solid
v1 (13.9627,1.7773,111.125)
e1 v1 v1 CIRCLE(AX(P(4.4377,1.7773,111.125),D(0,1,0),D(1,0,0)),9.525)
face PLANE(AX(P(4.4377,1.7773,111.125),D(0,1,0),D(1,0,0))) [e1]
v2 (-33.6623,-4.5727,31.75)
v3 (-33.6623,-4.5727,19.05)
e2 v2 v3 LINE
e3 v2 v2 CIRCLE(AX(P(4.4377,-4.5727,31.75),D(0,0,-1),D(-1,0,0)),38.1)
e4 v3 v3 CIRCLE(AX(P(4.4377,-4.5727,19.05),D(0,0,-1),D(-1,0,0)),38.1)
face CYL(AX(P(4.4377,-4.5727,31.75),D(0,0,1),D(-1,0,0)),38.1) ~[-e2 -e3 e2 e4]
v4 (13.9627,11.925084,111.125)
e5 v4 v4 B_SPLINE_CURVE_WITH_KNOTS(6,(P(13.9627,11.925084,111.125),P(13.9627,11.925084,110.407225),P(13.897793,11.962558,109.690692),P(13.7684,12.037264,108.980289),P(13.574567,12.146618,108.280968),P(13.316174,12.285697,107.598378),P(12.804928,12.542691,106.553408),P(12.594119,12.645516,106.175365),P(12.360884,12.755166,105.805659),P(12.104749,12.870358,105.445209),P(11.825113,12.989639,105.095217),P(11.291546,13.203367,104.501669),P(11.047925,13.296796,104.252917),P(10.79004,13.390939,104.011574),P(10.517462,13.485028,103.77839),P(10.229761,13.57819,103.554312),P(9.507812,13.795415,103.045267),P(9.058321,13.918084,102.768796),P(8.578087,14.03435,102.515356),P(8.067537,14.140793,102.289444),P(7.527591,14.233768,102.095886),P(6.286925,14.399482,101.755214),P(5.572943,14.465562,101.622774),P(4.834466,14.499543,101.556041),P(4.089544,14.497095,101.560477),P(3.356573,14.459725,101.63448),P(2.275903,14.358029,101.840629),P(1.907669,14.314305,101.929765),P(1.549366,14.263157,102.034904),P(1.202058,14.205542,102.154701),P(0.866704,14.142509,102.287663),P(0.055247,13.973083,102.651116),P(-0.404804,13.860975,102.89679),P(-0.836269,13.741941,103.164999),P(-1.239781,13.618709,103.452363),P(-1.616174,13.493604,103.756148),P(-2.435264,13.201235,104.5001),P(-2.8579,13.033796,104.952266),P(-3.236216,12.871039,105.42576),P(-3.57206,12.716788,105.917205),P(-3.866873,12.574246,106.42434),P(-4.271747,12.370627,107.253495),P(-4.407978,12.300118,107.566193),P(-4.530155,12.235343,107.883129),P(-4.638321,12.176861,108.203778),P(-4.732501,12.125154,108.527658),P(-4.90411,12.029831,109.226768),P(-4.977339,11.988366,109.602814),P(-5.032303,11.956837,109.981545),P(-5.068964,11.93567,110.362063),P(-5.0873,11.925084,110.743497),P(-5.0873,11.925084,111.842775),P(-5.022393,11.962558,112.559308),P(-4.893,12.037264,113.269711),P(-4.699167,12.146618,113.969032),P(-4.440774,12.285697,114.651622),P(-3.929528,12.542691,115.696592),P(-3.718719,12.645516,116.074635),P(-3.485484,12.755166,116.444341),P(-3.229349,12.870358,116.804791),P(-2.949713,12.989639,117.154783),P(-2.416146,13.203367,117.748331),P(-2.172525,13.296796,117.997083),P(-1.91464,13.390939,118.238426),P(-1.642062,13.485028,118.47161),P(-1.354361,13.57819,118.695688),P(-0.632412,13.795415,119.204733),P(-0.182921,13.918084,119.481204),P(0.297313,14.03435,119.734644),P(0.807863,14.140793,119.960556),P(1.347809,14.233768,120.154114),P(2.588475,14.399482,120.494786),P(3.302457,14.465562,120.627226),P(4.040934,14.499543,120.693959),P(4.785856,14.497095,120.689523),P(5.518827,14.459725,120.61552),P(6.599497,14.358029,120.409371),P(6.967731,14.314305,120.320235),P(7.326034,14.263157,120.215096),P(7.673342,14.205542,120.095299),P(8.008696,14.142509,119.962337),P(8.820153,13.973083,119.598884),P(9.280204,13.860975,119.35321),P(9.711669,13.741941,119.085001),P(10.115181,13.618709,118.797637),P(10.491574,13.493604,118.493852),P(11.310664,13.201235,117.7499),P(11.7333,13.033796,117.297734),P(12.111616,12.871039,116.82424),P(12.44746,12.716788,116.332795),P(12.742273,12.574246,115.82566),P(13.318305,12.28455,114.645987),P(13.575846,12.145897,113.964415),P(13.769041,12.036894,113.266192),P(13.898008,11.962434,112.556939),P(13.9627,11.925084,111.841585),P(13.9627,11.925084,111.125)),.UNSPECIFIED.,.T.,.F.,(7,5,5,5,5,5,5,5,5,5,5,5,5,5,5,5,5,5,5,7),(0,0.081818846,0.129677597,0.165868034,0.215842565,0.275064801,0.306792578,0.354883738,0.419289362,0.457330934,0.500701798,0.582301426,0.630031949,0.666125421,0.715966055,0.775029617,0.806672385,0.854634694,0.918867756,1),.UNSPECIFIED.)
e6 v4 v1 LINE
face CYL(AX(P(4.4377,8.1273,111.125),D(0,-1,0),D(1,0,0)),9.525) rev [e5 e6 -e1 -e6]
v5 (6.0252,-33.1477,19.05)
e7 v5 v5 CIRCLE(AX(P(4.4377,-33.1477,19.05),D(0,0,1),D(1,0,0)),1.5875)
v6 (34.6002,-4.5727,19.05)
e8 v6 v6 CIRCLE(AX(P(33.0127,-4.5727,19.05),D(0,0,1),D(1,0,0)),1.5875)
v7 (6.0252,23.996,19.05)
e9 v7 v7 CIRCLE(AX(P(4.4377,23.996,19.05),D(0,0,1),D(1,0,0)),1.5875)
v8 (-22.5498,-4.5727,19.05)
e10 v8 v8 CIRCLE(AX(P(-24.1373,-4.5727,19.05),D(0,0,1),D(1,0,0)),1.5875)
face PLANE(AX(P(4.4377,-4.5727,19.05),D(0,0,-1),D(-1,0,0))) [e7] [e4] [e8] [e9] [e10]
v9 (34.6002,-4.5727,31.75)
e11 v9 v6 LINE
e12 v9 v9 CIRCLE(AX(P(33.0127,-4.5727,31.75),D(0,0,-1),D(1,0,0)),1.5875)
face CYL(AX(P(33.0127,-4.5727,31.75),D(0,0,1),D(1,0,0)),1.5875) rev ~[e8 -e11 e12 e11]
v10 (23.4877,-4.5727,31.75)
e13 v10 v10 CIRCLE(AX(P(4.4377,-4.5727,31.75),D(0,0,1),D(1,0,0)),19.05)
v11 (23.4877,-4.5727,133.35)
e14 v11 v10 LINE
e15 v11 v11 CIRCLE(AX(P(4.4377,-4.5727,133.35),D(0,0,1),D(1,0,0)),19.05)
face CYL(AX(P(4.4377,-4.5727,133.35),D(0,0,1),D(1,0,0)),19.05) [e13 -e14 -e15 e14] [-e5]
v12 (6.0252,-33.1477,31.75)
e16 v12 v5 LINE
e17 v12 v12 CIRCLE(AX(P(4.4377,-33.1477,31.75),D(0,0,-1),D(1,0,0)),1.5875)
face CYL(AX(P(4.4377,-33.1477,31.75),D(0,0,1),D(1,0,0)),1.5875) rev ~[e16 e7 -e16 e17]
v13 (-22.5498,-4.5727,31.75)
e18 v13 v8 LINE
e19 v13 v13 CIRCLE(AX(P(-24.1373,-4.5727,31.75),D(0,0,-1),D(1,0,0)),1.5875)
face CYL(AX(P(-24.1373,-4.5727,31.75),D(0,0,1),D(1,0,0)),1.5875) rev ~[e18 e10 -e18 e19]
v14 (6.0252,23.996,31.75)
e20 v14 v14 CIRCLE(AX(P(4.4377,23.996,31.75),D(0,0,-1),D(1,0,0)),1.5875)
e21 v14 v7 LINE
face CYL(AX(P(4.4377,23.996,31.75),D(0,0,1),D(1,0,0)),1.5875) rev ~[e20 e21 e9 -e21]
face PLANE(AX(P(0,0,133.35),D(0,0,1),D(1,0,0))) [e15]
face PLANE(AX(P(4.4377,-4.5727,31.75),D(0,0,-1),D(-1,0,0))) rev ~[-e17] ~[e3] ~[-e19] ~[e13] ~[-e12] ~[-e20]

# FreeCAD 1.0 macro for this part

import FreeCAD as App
import Part
import Sketcher
from FreeCAD import Vector
Q = App.Units.Quantity

doc = App.newDocument("Part")
body = doc.addObject("PartDesign::Body", "Body")

sketch1 = body.newObject("Sketcher::SketchObject", "Sketch")
sketch1.AttachmentSupport = (doc.getObject("XY_Plane"), [""])
sketch1.MapMode = "FlatFace"
sketch1.AttachmentOffset = App.Placement(Vector(0, 0, 1.25 * 25.4), App.Rotation())
sketch1.addGeometry(Part.Circle(Vector(4, -5, 0), Vector(0, 0, 1), 25), False)
sketch1.addConstraint([
    Sketcher.Constraint("Diameter", 0, Q("2 in")),
    Sketcher.Constraint("DistanceX", -1, 1, 0, 3, 4.4377),
    Sketcher.Constraint("DistanceY", 0, 3, -1, 1, 4.5727),
])
pad1 = body.newObject("PartDesign::Pad", "Pad")
pad1.Profile = sketch1
pad1.Length = Q("4 in")

sketch2 = body.newObject("Sketcher::SketchObject", "Sketch001")
sketch2.AttachmentSupport = (doc.getObject("XZ_Plane"), [""])
sketch2.MapMode = "FlatFace"
sketch2.AttachmentOffset = App.Placement(Vector(0, 0, -8.1273), App.Rotation())
sketch2.addGeometry(Part.Circle(Vector(4, 111, 0), Vector(0, 0, 1), 10), False)
sketch2.addConstraint([
    Sketcher.Constraint("Diameter", 0, Q("0.75 in")),
    Sketcher.Constraint("DistanceY", -1, 1, 0, 3, Q("4.375 in")),
    Sketcher.Constraint("DistanceX", -1, 1, 0, 3, 4.4377),
])
pocket1 = body.newObject("PartDesign::Pocket", "Pocket")
pocket1.Profile = sketch2
pocket1.Length = Q("4 in")

sketch3 = body.newObject("Sketcher::SketchObject", "Sketch002")
sketch3.AttachmentSupport = (doc.getObject("XZ_Plane"), [""])
sketch3.MapMode = "FlatFace"
sketch3.AttachmentOffset = App.Placement(Vector(0, 0, -8.1273), App.Rotation())
sketch3.addGeometry(Part.Circle(Vector(4, 111, 0), Vector(0, 0, 1), 10), False)
sketch3.addConstraint([
    Sketcher.Constraint("Diameter", 0, Q("0.75 in")),
    Sketcher.Constraint("DistanceY", -1, 1, 0, 3, Q("4.375 in")),
    Sketcher.Constraint("DistanceX", -1, 1, 0, 3, 4.4377),
])
pocket2 = body.newObject("PartDesign::Pocket", "Pocket001")
pocket2.Profile = sketch3
pocket2.Length = Q("0.25 in")
pocket2.Reversed = True

sketch4 = body.newObject("Sketcher::SketchObject", "Sketch003")
sketch4.AttachmentSupport = (doc.getObject("XY_Plane"), [""])
sketch4.MapMode = "FlatFace"
sketch4.AttachmentOffset = App.Placement(Vector(0, 0, 1.25 * 25.4), App.Rotation())
sketch4.addGeometry(Part.Circle(Vector(4, -5, 0), Vector(0, 0, 1), 38), False)
sketch4.addConstraint([
    Sketcher.Constraint("Diameter", 0, Q("3 in")),
    Sketcher.Constraint("DistanceX", -1, 1, 0, 3, 4.4377),
    Sketcher.Constraint("DistanceY", 0, 3, -1, 1, 4.5727),
])
pad2 = body.newObject("PartDesign::Pad", "Pad001")
pad2.Profile = sketch4
pad2.Length = Q("0.5 in")
pad2.Reversed = True

sketch5 = body.newObject("Sketcher::SketchObject", "Sketch004")
sketch5.AttachmentSupport = (doc.getObject("XY_Plane"), [""])
sketch5.MapMode = "FlatFace"
sketch5.AttachmentOffset = App.Placement(Vector(0, 0, 5.25 * 25.4), App.Rotation())
sketch5.addGeometry([
    Part.Circle(Vector(4, -5, 0), Vector(0, 0, 1), 25),
    Part.Circle(Vector(4, -5, 0), Vector(0, 0, 1), 19),
], False)
sketch5.addConstraint([
    Sketcher.Constraint("Coincident", 1, 3, 0, 3),
    Sketcher.Constraint("Diameter", 1, Q("1.5 in")),
    Sketcher.Constraint("Diameter", 0, Q("2 in")),
    Sketcher.Constraint("DistanceX", -1, 1, 0, 3, 4.4377),
    Sketcher.Constraint("DistanceY", 0, 3, -1, 1, 4.5727),
])
pocket3 = body.newObject("PartDesign::Pocket", "Pocket002")
pocket3.Profile = sketch5
pocket3.Length = Q("4 in")

sketch6 = body.newObject("Sketcher::SketchObject", "Sketch005")
sketch6.AttachmentSupport = (doc.getObject("XY_Plane"), [""])
sketch6.MapMode = "FlatFace"
sketch6.AttachmentOffset = App.Placement(Vector(0, 0, 1.25 * 25.4), App.Rotation())
sketch6.addGeometry([
    Part.Circle(Vector(-24.1, -4.6, 0), Vector(0, 0, 1), 1.6),
    Part.Circle(Vector(4.4, -33.1, 0), Vector(0, 0, 1), 1.6),
    Part.Circle(Vector(4.4, 24, 0), Vector(0, 0, 1), 1.6),
    Part.Circle(Vector(33, -4.6, 0), Vector(0, 0, 1), 1.6),
], False)
sketch6.addConstraint([
    Sketcher.Constraint("Equal", 0, 1),
    Sketcher.Constraint("Equal", 1, 2),
    Sketcher.Constraint("Equal", 2, 3),
    Sketcher.Constraint("Horizontal", 0, 3, 3, 3),
    Sketcher.Constraint("Vertical", 1, 3, 2, 3),
    Sketcher.Constraint("Diameter", 0, Q("0.125 in")),
    Sketcher.Constraint("DistanceX", 0, 3, 3, 3, Q("2.25 in")),
    Sketcher.Constraint("DistanceX", 0, 3, 1, 3, Q("1.125 in")),
    Sketcher.Constraint("DistanceY", 1, 3, 0, 3, Q("1.125 in")),
    Sketcher.Constraint("DistanceX", 0, 3, -1, 1, 24.1373),
    Sketcher.Constraint("DistanceY", 0, 3, -1, 1, 4.5727),
    Sketcher.Constraint("DistanceY", -1, 1, 2, 3, 23.996),
])
pocket4 = body.newObject("PartDesign::Pocket", "Pocket003")
pocket4.Profile = sketch6
pocket4.Length = Q("4 in")

doc.recompute()
